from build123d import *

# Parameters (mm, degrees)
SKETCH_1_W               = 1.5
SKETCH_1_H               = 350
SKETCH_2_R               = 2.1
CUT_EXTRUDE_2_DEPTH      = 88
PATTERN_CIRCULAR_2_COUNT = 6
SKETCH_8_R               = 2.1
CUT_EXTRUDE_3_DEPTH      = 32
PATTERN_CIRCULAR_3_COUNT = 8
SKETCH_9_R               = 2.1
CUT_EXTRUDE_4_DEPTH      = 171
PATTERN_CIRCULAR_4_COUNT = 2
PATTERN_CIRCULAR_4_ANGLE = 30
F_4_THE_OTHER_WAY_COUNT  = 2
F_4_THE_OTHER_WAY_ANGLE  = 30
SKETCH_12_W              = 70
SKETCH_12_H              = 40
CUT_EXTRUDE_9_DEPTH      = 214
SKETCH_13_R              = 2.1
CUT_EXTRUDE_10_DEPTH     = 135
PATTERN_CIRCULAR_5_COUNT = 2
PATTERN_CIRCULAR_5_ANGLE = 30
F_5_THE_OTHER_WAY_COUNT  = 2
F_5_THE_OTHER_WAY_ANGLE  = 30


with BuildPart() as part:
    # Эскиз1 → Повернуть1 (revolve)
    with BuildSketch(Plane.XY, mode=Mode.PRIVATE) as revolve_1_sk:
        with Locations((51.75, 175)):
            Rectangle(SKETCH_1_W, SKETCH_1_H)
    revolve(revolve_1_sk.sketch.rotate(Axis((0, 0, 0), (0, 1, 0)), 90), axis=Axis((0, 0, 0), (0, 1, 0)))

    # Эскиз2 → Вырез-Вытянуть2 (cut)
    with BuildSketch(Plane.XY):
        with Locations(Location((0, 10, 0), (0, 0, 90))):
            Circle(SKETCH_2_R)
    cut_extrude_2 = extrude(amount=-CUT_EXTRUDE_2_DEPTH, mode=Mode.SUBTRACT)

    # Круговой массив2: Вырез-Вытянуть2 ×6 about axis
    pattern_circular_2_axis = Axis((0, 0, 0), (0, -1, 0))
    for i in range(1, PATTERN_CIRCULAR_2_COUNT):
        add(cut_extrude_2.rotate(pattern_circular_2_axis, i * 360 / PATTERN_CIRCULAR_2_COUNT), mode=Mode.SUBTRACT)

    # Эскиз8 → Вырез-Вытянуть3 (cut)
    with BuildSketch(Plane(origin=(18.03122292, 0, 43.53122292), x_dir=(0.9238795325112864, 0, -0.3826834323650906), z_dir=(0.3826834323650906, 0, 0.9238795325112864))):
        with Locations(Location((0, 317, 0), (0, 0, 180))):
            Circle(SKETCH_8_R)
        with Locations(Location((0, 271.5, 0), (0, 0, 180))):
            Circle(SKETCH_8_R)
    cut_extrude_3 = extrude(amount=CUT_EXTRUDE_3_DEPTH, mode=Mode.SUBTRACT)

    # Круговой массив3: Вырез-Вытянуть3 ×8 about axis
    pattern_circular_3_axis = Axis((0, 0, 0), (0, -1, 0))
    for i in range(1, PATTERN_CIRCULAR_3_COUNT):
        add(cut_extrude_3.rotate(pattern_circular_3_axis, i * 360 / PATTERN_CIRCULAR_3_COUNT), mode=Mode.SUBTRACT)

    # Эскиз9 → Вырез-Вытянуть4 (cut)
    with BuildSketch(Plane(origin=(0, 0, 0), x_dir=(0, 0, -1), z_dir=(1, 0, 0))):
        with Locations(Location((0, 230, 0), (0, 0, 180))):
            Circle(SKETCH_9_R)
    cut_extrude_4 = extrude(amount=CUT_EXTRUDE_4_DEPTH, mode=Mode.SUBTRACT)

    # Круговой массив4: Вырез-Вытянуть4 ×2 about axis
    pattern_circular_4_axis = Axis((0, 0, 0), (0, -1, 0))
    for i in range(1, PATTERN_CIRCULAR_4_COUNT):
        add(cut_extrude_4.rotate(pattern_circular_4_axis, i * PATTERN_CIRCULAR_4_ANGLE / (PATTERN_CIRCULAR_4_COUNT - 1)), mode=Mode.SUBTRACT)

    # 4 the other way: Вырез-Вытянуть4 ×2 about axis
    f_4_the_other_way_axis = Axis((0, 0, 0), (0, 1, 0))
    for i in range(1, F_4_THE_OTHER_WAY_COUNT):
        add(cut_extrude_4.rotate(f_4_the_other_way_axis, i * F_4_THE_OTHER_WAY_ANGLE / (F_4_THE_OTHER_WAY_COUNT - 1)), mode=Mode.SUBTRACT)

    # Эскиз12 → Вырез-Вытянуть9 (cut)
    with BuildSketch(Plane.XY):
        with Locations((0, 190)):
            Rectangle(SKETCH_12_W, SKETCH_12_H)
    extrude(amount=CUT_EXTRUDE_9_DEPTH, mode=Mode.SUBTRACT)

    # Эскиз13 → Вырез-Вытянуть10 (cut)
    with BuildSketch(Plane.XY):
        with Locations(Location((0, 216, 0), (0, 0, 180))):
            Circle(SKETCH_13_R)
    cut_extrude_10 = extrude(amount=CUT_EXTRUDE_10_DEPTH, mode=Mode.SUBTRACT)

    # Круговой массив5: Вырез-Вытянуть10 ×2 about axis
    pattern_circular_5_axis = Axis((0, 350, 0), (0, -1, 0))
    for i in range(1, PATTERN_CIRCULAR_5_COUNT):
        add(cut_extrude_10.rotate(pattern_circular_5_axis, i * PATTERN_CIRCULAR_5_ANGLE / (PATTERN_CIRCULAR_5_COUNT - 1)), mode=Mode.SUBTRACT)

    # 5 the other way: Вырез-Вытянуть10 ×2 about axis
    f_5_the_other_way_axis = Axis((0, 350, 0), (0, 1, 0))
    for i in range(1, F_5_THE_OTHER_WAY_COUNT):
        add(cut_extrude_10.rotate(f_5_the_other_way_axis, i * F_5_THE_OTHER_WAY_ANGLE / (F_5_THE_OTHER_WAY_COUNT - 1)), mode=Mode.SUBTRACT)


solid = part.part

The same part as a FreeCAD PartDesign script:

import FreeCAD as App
import Part
import Sketcher

V = App.Vector


def add_polygon(sketch, points):
    """Adds a closed chain of lines whose ends are joined by coincident constraints."""
    first, n = sketch.GeometryCount, len(points)
    for a, b in zip(points, points[1:] + points[:1]):
        sketch.addGeometry(Part.LineSegment(App.Vector(*a, 0), App.Vector(*b, 0)), False)
    for i in range(n):
        sketch.addConstraint(Sketcher.Constraint("Coincident", first + i, 2, first + (i + 1) % n, 1))

doc = App.newDocument("Part")
body = doc.addObject("PartDesign::Body", "Body")

# Sketch on XY plane
sketch1 = body.newObject("Sketcher::SketchObject", "Sketch")
sketch1.AttachmentSupport = (doc.getObject("XY_Plane"), [""])
sketch1.MapMode = "FlatFace"
add_polygon(sketch1, [(51, 350), (51, 0), (52.5, 0), (52.5, 350)])  # lines 0-3
sketch1.addConstraint([
    Sketcher.Constraint("Vertical", 0),
    Sketcher.Constraint("Horizontal", 1),
    Sketcher.Constraint("Vertical", 2),
    Sketcher.Constraint("Horizontal", 3),
    Sketcher.Constraint("PointOnObject", 0, 2, -1),
    Sketcher.Constraint("DistanceY", 0, 2, 0, 1, 350.0),
    Sketcher.Constraint("DistanceX", 1, 1, 1, 2, 1.5),
    Sketcher.Constraint("DistanceX", -1, 1, 0, 2, 51.0),
])
revolution = body.newObject("PartDesign::Revolution", "Revolution")
revolution.Profile = sketch1
revolution.ReferenceAxis = (sketch1, ["V_Axis"])
revolution.Angle = 360

# Sketch on XY plane
sketch2 = body.newObject("Sketcher::SketchObject", "Sketch001")
sketch2.AttachmentSupport = (doc.getObject("XY_Plane"), [""])
sketch2.MapMode = "FlatFace"
sketch2.addGeometry(Part.Circle(V(0, 10, 0), V(0, 0, 1), 2.1), False)
sketch2.addConstraint([
    Sketcher.Constraint("PointOnObject", 0, 3, -2),
    Sketcher.Constraint("Diameter", 0, 4.2),
    Sketcher.Constraint("DistanceY", -1, 1, 0, 3, 10.0),
])
pocket1 = body.newObject("PartDesign::Pocket", "Pocket")
pocket1.Profile = sketch2
pocket1.Length = 88
doc.recompute()

polarpattern = body.newObject("PartDesign::PolarPattern", "PolarPattern")
polarpattern.Originals = [pocket1]
polarpattern.Axis = (doc.getObject("Y_Axis"), [""])
polarpattern.Angle = 360
polarpattern.Occurrences = 6
body.Tip = polarpattern

# Sketch on an angled plane
sketch3 = body.newObject("Sketcher::SketchObject", "Sketch002")
sketch3.Placement = App.Placement(V(18.031223, 0, 43.531223), App.Rotation(V(0.923879533, 0, -0.382683432), V(0, 1.000000001, 0), V(0.382683432, 0, 0.923879533), "ZXY"))
sketch3.addGeometry([
    Part.Circle(V(0, 317, 0), V(0, 0, 1), 2.1),
    Part.Circle(V(0, 271.5, 0), V(0, 0, 1), 2.1),
], False)
sketch3.addConstraint([
    Sketcher.Constraint("Equal", 0, 1),
    Sketcher.Constraint("PointOnObject", 0, 3, -2),
    Sketcher.Constraint("PointOnObject", 1, 3, -2),
    Sketcher.Constraint("Diameter", 0, 4.2),
    Sketcher.Constraint("DistanceY", -1, 1, 0, 3, 317.0),
    Sketcher.Constraint("DistanceY", -1, 1, 1, 3, 271.5),
])
pocket2 = body.newObject("PartDesign::Pocket", "Pocket001")
pocket2.Profile = sketch3
pocket2.Length = 32
pocket2.Reversed = True
doc.recompute()

polarpattern2 = body.newObject("PartDesign::PolarPattern", "PolarPattern001")
polarpattern2.Originals = [pocket2]
polarpattern2.Axis = (doc.getObject("Y_Axis"), [""])
polarpattern2.Angle = 360
polarpattern2.Occurrences = 8
body.Tip = polarpattern2

# Sketch on YZ plane
sketch4 = body.newObject("Sketcher::SketchObject", "Sketch003")
sketch4.AttachmentSupport = (doc.getObject("YZ_Plane"), [""])
sketch4.MapMode = "FlatFace"
sketch4.addGeometry(Part.Circle(V(230, 0, 0), V(0, 0, 1), 2.1), False)
sketch4.addConstraint([
    Sketcher.Constraint("PointOnObject", 0, 3, -1),
    Sketcher.Constraint("Diameter", 0, 4.2),
    Sketcher.Constraint("DistanceX", -1, 1, 0, 3, 230.0),
])
pocket3 = body.newObject("PartDesign::Pocket", "Pocket002")
pocket3.Profile = sketch4
pocket3.Length = 171
pocket3.Reversed = True
doc.recompute()

polarpattern3 = body.newObject("PartDesign::PolarPattern", "PolarPattern002")
polarpattern3.Originals = [pocket3]
polarpattern3.Axis = (doc.getObject("Y_Axis"), [""])
polarpattern3.Angle = 30
polarpattern3.Occurrences = 2
polarpattern3.Reversed = True
body.Tip = polarpattern3
doc.recompute()

polarpattern4 = body.newObject("PartDesign::PolarPattern", "PolarPattern003")
polarpattern4.Originals = [pocket3]
polarpattern4.Axis = (doc.getObject("Y_Axis"), [""])
polarpattern4.Angle = 30
polarpattern4.Occurrences = 2
body.Tip = polarpattern4

# Sketch on XY plane
sketch5 = body.newObject("Sketcher::SketchObject", "Sketch004")
sketch5.AttachmentSupport = (doc.getObject("XY_Plane"), [""])
sketch5.MapMode = "FlatFace"
add_polygon(sketch5, [(-35, 210), (-35, 170), (35, 170), (35, 210)])  # lines 0-3
sketch5.addConstraint([
    Sketcher.Constraint("Vertical", 0),
    Sketcher.Constraint("Horizontal", 1),
    Sketcher.Constraint("Vertical", 2),
    Sketcher.Constraint("Horizontal", 3),
    Sketcher.Constraint("DistanceX", 1, 1, 1, 2, 70.0),
    Sketcher.Constraint("DistanceY", 0, 2, 0, 1, 40.0),
    Sketcher.Constraint("DistanceX", 0, 2, -1, 1, 35.0),
    Sketcher.Constraint("DistanceY", -1, 1, 0, 2, 170.0),
])
pocket4 = body.newObject("PartDesign::Pocket", "Pocket003")
pocket4.Profile = sketch5
pocket4.Length = 214
pocket4.Reversed = True

# Sketch on XY plane
sketch6 = body.newObject("Sketcher::SketchObject", "Sketch005")
sketch6.AttachmentSupport = (doc.getObject("XY_Plane"), [""])
sketch6.MapMode = "FlatFace"
sketch6.addGeometry(Part.Circle(V(0, 216, 0), V(0, 0, 1), 2.1), False)
sketch6.addConstraint([
    Sketcher.Constraint("PointOnObject", 0, 3, -2),
    Sketcher.Constraint("Diameter", 0, 4.2),
    Sketcher.Constraint("DistanceY", -1, 1, 0, 3, 216.0),
])
pocket5 = body.newObject("PartDesign::Pocket", "Pocket004")
pocket5.Profile = sketch6
pocket5.Length = 135
pocket5.Reversed = True
doc.recompute()

polarpattern5 = body.newObject("PartDesign::PolarPattern", "PolarPattern004")
polarpattern5.Originals = [pocket5]
polarpattern5.Axis = (doc.getObject("Y_Axis"), [""])
polarpattern5.Angle = 30
polarpattern5.Occurrences = 2
polarpattern5.Reversed = True
body.Tip = polarpattern5
doc.recompute()

polarpattern6 = body.newObject("PartDesign::PolarPattern", "PolarPattern005")
polarpattern6.Originals = [pocket5]
polarpattern6.Axis = (doc.getObject("Y_Axis"), [""])
polarpattern6.Angle = 30
polarpattern6.Occurrences = 2
body.Tip = polarpattern6

doc.recompute()
